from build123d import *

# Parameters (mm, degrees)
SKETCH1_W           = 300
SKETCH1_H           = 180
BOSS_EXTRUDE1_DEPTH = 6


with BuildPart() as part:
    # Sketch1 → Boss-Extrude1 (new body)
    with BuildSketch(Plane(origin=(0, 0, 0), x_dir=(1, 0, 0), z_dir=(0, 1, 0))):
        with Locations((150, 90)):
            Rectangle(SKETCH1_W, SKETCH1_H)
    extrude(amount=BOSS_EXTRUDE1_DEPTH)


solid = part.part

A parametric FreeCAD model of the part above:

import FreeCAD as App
import Part
import Sketcher
from FreeCAD import Vector

doc = App.newDocument("Part")
params = doc.addObject("Spreadsheet::Sheet", "Params")
for row, (alias, value) in enumerate([
    ("sketch1_width", "300 mm"),
    ("sketch1_height", "180 mm"),
    ("pad1_length", "6 mm"),
], start=1):
    params.set(f"A{row}", alias)
    params.set(f"B{row}", "=" + value)
    params.setAlias(f"B{row}", alias)

body = doc.addObject("PartDesign::Body", "Body")

sketch1 = body.newObject("Sketcher::SketchObject", "Sketch")
sketch1.AttachmentSupport = (doc.getObject("XZ_Plane"), [""])
sketch1.MapMode = "FlatFace"
sketch1.addGeometry([
    Part.LineSegment(Vector(0, -180, 0), Vector(0, 0, 0)),
    Part.LineSegment(Vector(0, 0, 0), Vector(300, 0, 0)),
    Part.LineSegment(Vector(300, 0, 0), Vector(300, -180, 0)),
    Part.LineSegment(Vector(300, -180, 0), Vector(0, -180, 0)),
], False)
sketch1.addConstraint([
    Sketcher.Constraint("Coincident", 0, 2, 1, 1),
    Sketcher.Constraint("Coincident", 1, 2, 2, 1),
    Sketcher.Constraint("Coincident", 2, 2, 3, 1),
    Sketcher.Constraint("Coincident", 3, 2, 0, 1),
    Sketcher.Constraint("Vertical", 0),
    Sketcher.Constraint("Horizontal", 1),
    Sketcher.Constraint("Vertical", 2),
    Sketcher.Constraint("Horizontal", 3),
    Sketcher.Constraint("Coincident", 0, 2, -1, 1),
    Sketcher.Constraint("DistanceX", 1, 1, 1, 2, 300.0),
    Sketcher.Constraint("DistanceY", 0, 1, 0, 2, 180.0),
])
sketch1.setExpression("Constraints[9]", "Params.sketch1_width")
sketch1.setExpression("Constraints[10]", "Params.sketch1_height")
pad1 = body.newObject("PartDesign::Pad", "Pad")
pad1.Profile = sketch1
pad1.setExpression("Length", "Params.pad1_length")
pad1.Reversed = True

doc.recompute()
